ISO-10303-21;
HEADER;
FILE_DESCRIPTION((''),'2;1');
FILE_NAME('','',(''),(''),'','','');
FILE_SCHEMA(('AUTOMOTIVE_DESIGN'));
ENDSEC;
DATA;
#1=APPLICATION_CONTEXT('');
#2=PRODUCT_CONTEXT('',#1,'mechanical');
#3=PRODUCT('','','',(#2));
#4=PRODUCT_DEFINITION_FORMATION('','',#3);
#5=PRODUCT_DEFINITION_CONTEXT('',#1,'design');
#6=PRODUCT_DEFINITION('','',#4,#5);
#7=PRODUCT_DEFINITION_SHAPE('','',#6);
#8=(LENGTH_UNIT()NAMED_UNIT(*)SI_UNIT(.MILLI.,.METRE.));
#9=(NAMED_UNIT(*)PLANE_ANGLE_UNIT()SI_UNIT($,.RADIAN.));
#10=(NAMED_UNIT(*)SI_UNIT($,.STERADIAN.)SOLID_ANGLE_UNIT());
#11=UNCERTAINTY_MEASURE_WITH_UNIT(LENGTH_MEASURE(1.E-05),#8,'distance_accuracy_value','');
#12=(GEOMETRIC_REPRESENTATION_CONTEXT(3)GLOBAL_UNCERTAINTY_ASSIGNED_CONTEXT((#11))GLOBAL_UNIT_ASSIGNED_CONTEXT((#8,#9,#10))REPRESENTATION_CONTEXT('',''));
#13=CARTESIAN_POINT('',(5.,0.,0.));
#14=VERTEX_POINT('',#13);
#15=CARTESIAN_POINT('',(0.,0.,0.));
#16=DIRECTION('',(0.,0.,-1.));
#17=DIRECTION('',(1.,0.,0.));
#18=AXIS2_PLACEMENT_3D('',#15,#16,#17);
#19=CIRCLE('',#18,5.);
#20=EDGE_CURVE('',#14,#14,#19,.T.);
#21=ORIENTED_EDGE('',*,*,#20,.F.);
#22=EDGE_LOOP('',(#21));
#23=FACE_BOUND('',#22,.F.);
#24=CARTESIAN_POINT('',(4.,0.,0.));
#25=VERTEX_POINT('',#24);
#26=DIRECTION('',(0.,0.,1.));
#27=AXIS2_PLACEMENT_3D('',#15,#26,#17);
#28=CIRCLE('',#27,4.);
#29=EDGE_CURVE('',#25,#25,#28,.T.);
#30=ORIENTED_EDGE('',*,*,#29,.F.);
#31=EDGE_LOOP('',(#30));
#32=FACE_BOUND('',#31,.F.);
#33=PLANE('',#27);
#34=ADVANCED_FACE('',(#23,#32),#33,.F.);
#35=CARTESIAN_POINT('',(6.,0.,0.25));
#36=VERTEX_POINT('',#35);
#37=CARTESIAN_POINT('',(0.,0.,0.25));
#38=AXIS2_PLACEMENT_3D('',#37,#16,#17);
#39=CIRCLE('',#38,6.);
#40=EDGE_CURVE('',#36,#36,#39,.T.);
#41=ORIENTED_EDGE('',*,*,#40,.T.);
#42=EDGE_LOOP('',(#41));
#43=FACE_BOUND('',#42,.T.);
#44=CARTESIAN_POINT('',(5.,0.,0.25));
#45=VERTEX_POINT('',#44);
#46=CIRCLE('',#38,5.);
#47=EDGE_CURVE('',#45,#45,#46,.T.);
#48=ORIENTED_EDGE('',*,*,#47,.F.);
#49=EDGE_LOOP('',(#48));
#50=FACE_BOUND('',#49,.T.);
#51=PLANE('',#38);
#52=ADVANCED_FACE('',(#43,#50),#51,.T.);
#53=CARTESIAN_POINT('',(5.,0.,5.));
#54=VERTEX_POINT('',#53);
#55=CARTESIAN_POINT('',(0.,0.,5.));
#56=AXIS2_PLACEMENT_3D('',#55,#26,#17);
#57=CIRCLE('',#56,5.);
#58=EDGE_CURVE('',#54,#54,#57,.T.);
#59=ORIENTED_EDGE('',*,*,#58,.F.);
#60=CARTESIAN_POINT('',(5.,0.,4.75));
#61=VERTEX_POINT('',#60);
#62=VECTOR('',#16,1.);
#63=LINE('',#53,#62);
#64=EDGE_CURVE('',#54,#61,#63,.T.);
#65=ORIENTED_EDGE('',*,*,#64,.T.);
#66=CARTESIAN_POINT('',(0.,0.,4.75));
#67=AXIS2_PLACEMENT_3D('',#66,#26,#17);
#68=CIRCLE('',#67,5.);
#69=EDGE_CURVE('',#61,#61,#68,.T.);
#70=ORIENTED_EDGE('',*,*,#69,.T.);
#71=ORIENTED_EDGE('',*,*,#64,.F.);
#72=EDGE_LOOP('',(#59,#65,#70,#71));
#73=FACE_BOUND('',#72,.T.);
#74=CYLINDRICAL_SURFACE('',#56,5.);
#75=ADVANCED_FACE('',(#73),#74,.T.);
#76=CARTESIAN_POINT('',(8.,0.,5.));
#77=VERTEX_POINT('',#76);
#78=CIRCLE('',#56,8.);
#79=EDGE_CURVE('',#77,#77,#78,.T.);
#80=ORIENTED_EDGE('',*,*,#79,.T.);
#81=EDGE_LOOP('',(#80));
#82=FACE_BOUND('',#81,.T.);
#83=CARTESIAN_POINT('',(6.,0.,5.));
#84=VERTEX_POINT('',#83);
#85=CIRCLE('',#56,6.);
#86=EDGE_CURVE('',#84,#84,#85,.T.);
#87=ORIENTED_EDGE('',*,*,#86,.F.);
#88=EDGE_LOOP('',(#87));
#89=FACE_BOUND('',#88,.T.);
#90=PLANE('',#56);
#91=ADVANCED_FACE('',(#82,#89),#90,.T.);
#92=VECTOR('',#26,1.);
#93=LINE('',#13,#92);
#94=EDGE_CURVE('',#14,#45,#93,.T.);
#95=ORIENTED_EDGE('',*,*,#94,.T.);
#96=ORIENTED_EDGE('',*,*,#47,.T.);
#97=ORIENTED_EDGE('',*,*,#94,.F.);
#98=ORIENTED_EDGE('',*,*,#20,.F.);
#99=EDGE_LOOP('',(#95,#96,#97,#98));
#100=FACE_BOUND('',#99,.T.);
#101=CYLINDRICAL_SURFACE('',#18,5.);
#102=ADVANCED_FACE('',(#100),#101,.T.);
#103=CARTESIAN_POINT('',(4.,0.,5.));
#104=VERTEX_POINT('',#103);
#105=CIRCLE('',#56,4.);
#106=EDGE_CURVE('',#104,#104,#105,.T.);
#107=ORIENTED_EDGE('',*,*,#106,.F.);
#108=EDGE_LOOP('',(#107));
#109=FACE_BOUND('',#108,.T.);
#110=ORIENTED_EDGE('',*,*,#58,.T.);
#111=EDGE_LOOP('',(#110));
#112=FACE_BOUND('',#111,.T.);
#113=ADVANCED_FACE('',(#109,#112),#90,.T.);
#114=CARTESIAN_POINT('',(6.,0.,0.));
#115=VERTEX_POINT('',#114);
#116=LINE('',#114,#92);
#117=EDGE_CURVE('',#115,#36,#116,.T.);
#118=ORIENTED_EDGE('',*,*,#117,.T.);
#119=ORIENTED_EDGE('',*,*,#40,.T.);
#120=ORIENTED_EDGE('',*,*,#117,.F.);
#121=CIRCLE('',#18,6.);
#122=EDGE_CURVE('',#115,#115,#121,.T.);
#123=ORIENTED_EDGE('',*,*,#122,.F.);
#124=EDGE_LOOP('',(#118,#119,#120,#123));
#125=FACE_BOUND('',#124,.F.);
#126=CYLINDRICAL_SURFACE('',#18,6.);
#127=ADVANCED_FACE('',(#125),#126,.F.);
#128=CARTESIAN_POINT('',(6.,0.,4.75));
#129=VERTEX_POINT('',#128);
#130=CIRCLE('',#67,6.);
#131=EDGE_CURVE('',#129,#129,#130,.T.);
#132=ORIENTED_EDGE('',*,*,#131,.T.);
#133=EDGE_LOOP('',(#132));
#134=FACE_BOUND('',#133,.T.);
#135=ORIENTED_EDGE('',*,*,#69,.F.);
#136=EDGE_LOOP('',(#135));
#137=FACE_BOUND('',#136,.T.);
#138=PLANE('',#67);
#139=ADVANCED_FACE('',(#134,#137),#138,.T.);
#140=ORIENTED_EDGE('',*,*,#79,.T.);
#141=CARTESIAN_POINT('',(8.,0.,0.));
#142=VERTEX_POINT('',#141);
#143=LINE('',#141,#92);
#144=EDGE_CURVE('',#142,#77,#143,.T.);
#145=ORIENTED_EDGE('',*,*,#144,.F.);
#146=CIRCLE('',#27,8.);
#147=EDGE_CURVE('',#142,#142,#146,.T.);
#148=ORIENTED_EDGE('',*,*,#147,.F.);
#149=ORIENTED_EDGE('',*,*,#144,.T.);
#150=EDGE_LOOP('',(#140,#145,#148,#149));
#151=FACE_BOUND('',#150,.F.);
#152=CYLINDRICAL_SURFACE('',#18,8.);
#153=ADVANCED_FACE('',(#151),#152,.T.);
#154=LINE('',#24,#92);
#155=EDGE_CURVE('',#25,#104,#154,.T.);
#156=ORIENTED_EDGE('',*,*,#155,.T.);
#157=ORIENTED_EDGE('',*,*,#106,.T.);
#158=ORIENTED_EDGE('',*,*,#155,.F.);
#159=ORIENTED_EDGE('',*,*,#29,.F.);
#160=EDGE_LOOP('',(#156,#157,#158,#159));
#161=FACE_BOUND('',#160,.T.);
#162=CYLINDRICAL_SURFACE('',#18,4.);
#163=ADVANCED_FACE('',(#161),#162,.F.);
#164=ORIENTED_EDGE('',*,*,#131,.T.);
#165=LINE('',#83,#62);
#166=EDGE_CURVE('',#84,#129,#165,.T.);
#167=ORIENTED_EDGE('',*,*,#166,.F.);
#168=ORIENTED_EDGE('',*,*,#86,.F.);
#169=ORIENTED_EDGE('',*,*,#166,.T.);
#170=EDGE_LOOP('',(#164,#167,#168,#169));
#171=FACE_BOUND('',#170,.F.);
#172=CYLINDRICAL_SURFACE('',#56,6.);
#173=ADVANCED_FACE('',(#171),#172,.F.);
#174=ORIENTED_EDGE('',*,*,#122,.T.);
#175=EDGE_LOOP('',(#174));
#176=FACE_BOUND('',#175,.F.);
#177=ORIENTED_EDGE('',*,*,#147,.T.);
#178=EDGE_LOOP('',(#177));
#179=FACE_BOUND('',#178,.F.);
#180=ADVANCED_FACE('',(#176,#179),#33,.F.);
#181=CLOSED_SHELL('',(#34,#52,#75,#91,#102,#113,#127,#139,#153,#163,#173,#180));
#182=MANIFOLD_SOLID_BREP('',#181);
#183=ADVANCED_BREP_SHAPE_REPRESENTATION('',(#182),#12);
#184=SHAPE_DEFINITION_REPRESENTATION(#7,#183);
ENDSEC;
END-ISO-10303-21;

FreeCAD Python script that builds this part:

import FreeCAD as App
import Part
import Sketcher

V = App.Vector

doc = App.newDocument("Part")
body = doc.addObject("PartDesign::Body", "Body")

sketch1 = body.newObject("Sketcher::SketchObject", "Sketch")
sketch1.AttachmentSupport = (doc.getObject("XY_Plane"), [""])
sketch1.MapMode = "FlatFace"
sketch1.addGeometry(Part.Circle(V(0, 0, 0), V(0, 0, 1), 8), False)
sketch1.addGeometry(Part.Circle(V(0, 0, 0), V(0, 0, 1), 4), False)
sketch1.addConstraint(Sketcher.Constraint("Coincident", 0, 3, -1, 1))
sketch1.addConstraint(Sketcher.Constraint("Coincident", 1, 3, -1, 1))
sketch1.addConstraint(Sketcher.Constraint("Diameter", 0, 16.0))
sketch1.addConstraint(Sketcher.Constraint("Diameter", 1, 8.0))
pad1 = body.newObject("PartDesign::Pad", "Pad")
pad1.Profile = sketch1
pad1.Length = 5

sketch2 = body.newObject("Sketcher::SketchObject", "Sketch001")
sketch2.AttachmentSupport = (doc.getObject("XY_Plane"), [""])
sketch2.MapMode = "FlatFace"
sketch2.AttachmentOffset = App.Placement(V(0, 0, 5), App.Rotation())
sketch2.addGeometry(Part.Circle(V(0, 0, 0), V(0, 0, 1), 6), False)
sketch2.addGeometry(Part.Circle(V(0, 0, 0), V(0, 0, 1), 5), False)
sketch2.addConstraint(Sketcher.Constraint("Coincident", 0, 3, -1, 1))
sketch2.addConstraint(Sketcher.Constraint("Coincident", 1, 3, -1, 1))
sketch2.addConstraint(Sketcher.Constraint("Diameter", 0, 12.0))
sketch2.addConstraint(Sketcher.Constraint("Diameter", 1, 10.0))
pocket1 = body.newObject("PartDesign::Pocket", "Pocket")
pocket1.Profile = sketch2
pocket1.Length = 0.25

sketch3 = body.newObject("Sketcher::SketchObject", "Sketch002")
sketch3.AttachmentSupport = (doc.getObject("XY_Plane"), [""])
sketch3.MapMode = "FlatFace"
sketch3.addGeometry(Part.Circle(V(0, 0, 0), V(0, 0, 1), 6), False)
sketch3.addGeometry(Part.Circle(V(0, 0, 0), V(0, 0, 1), 5), False)
sketch3.addConstraint(Sketcher.Constraint("Coincident", 0, 3, -1, 1))
sketch3.addConstraint(Sketcher.Constraint("Coincident", 1, 3, -1, 1))
sketch3.addConstraint(Sketcher.Constraint("Diameter", 0, 12.0))
sketch3.addConstraint(Sketcher.Constraint("Diameter", 1, 10.0))
pocket2 = body.newObject("PartDesign::Pocket", "Pocket001")
pocket2.Profile = sketch3
pocket2.Length = 0.25
pocket2.Reversed = True

doc.recompute()
